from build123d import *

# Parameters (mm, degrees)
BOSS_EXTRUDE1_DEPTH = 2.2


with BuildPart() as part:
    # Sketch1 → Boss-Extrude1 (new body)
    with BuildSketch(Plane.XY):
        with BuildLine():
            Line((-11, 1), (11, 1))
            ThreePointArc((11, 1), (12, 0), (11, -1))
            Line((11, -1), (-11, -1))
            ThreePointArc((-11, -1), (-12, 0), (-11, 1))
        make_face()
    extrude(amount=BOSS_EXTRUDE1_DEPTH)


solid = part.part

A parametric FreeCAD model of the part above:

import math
import FreeCAD as App
import Part
import Sketcher
from FreeCAD import Vector
Q = App.Units.Quantity

doc = App.newDocument("Part")
body = doc.addObject("PartDesign::Body", "Body")

sketch1 = body.newObject("Sketcher::SketchObject", "Sketch")
sketch1.AttachmentSupport = (doc.getObject("XY_Plane"), [""])
sketch1.MapMode = "FlatFace"
sketch1.addGeometry([
    Part.LineSegment(Vector(11, 1, 0), Vector(-11, 1, 0)),
    Part.ArcOfCircle(Part.Circle(Vector(-11, 0, 0), Vector(0, 0, 1), 1), math.radians(90), math.radians(270)),
    Part.LineSegment(Vector(-11, -1, 0), Vector(11, -1, 0)),
    Part.ArcOfCircle(Part.Circle(Vector(11, 0, 0), Vector(0, 0, 1), 1), math.radians(-90), math.radians(90)),
], False)
sketch1.addConstraint([
    Sketcher.Constraint("Tangent", 0, 2, 1, 1),
    Sketcher.Constraint("Tangent", 1, 2, 2, 1),
    Sketcher.Constraint("Tangent", 2, 2, 3, 1),
    Sketcher.Constraint("Tangent", 3, 2, 0, 1),
    Sketcher.Constraint("Horizontal", 0),
    Sketcher.Constraint("Horizontal", 2),
    Sketcher.Constraint("Symmetric", 1, 3, 3, 3, -1, 1),
    Sketcher.Constraint("Radius", 1, Q("1 mm")),
    Sketcher.Constraint("DistanceX", 0, 2, 0, 1, Q("22 mm")),
])
pad1 = body.newObject("PartDesign::Pad", "Pad")
pad1.Profile = sketch1
pad1.Length = 2.2

doc.recompute()
